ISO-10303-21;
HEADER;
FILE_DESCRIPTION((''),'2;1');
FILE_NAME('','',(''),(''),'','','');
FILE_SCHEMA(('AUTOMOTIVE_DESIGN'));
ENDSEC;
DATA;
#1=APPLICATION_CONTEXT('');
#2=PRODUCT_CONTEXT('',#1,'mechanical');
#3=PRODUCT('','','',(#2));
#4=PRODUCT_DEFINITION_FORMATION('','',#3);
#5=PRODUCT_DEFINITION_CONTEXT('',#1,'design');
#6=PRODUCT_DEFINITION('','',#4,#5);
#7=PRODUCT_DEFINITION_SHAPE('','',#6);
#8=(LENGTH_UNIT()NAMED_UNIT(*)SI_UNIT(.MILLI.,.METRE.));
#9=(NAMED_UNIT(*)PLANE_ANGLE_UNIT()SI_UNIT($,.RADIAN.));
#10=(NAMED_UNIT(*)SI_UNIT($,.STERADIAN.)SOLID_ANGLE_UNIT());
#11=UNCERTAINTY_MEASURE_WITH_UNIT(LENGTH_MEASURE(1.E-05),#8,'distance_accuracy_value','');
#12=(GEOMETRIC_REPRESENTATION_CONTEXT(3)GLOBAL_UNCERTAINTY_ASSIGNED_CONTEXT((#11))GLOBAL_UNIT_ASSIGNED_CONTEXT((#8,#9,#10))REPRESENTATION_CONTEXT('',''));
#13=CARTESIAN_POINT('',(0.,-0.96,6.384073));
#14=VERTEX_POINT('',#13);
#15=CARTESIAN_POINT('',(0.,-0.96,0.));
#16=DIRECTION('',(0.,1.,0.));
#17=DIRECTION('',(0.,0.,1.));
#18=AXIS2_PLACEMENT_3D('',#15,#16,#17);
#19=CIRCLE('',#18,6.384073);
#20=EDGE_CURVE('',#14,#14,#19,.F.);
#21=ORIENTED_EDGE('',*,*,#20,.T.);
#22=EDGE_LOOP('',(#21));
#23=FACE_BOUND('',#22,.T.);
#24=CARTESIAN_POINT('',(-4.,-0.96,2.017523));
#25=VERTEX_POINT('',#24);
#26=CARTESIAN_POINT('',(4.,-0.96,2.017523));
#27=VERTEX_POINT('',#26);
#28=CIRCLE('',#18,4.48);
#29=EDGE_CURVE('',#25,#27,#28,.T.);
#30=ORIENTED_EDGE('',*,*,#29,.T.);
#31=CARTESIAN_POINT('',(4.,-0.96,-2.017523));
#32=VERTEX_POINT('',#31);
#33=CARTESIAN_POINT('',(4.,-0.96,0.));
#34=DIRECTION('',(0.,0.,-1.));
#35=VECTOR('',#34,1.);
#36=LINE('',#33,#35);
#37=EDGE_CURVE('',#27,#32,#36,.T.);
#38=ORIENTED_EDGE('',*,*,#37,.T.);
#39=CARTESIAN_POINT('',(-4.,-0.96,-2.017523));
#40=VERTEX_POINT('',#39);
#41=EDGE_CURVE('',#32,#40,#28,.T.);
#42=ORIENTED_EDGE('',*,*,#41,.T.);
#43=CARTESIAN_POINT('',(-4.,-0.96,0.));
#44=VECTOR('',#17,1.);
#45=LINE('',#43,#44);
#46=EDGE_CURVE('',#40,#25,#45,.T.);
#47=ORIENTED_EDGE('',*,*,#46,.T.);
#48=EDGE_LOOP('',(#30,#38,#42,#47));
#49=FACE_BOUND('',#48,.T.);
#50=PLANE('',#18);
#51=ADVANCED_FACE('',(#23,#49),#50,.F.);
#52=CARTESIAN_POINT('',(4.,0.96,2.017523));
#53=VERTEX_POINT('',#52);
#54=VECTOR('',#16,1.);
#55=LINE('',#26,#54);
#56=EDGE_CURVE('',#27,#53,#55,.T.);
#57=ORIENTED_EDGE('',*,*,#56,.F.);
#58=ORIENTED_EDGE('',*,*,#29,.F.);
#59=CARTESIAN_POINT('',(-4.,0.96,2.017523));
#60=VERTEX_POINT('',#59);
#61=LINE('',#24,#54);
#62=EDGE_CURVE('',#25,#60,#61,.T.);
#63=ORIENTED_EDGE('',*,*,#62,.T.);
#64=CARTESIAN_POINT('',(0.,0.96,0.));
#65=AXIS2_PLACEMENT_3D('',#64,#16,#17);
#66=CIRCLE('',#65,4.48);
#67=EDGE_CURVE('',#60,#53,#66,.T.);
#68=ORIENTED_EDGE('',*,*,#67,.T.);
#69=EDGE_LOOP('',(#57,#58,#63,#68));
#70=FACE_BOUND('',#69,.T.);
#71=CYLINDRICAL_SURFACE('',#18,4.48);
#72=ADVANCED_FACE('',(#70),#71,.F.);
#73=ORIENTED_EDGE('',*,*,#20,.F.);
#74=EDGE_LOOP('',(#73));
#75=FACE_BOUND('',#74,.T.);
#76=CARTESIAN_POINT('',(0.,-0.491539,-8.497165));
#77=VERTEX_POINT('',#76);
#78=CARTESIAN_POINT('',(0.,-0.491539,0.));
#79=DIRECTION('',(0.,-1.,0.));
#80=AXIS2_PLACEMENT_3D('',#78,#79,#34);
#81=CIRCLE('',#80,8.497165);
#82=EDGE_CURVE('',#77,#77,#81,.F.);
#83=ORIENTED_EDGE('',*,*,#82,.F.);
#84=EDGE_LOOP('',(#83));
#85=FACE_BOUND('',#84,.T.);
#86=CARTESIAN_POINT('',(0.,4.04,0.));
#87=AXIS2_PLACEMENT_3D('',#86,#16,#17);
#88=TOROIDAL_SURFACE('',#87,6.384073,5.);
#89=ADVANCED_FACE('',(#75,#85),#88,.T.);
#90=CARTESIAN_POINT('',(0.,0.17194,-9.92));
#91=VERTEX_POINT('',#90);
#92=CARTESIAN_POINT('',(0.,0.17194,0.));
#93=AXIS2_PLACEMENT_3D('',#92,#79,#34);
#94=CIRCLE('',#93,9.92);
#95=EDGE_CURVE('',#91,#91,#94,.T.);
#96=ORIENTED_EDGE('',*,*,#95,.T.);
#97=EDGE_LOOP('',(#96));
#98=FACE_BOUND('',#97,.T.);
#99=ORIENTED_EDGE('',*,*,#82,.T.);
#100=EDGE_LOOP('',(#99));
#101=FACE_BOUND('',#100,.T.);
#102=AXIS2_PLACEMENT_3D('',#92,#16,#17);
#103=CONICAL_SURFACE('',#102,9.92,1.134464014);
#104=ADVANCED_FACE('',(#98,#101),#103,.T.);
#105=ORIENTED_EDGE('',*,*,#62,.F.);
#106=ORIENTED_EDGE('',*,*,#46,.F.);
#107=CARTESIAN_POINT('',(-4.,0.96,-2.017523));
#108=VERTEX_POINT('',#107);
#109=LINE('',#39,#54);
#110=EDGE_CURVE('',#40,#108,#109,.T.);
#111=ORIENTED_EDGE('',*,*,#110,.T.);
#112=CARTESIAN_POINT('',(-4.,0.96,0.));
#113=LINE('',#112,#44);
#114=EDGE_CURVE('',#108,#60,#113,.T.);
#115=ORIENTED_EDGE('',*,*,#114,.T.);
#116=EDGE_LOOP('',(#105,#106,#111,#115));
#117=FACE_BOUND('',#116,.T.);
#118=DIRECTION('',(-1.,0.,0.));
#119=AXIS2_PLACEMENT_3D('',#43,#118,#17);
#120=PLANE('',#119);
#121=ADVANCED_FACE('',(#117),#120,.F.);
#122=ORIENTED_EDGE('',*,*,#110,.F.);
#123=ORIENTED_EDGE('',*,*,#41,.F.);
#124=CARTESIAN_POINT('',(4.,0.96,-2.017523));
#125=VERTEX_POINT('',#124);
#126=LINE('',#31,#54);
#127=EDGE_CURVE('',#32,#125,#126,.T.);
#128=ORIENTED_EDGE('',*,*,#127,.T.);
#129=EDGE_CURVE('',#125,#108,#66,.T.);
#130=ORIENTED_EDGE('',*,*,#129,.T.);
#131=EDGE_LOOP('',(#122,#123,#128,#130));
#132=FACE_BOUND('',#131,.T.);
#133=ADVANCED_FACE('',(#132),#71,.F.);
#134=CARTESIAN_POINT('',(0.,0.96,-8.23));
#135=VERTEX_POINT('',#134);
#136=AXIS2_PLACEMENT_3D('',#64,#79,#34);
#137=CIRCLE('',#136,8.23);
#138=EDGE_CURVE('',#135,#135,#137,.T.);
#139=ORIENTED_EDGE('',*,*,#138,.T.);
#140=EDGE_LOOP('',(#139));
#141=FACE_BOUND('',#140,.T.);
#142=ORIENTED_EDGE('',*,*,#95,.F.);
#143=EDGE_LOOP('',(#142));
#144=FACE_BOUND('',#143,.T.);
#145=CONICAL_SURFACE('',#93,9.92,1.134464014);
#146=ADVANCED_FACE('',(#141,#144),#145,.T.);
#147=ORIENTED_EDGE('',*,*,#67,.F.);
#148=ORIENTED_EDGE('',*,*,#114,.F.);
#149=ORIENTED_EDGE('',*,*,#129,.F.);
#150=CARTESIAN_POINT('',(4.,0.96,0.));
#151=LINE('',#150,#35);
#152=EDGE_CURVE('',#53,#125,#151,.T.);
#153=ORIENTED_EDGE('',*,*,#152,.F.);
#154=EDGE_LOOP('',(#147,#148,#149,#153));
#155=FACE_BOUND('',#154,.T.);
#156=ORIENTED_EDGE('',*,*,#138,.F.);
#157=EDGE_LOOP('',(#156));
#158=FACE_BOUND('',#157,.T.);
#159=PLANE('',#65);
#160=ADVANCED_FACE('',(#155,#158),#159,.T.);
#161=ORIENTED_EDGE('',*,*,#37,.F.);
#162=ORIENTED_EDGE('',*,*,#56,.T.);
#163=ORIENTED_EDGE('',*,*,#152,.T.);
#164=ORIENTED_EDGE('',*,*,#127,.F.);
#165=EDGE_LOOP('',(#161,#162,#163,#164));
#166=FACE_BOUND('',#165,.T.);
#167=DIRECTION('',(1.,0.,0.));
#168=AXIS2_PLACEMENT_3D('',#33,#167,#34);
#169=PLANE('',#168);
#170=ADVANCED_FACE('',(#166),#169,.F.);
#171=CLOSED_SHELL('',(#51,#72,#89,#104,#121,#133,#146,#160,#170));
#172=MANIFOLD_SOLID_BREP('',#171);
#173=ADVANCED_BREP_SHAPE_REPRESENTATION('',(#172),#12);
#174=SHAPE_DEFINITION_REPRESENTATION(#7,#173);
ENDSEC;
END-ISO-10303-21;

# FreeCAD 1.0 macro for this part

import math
import FreeCAD as App
import Part
import Sketcher

V = App.Vector
Q = App.Units.Quantity


def edges_at(feature, points):
    """Names of the edges that pass closest to the given points."""
    edges = feature.Shape.Edges
    near = lambda p: min(range(len(edges)), key=lambda i: edges[i].distToShape(Part.Vertex(*p))[0])
    return sorted({f"Edge{near(p) + 1}" for p in points})

doc = App.newDocument("Part")
body = doc.addObject("PartDesign::Body", "Body")

sketch1 = body.newObject("Sketcher::SketchObject", "Sketch")
sketch1.AttachmentSupport = (doc.getObject("XZ_Plane"), [""])
sketch1.MapMode = "FlatFace"
sketch1.addGeometry(Part.Circle(V(0, 0, 0), V(0, 0, 1), 9.92), False)
sketch1.addConstraint(Sketcher.Constraint("Coincident", 0, 3, -1, 1))
sketch1.addConstraint(Sketcher.Constraint("Diameter", 0, 19.84))
pad1 = body.newObject("PartDesign::Pad", "Pad")
pad1.Profile = sketch1
pad1.Length = 1.92
pad1.Midplane = True

sketch2 = body.newObject("Sketcher::SketchObject", "Sketch001")
sketch2.AttachmentSupport = (doc.getObject("XY_Plane"), [""])
sketch2.MapMode = "FlatFace"
sketch2.addGeometry(Part.LineSegment(V(-9.92, 0.96, 0), V(-9.92, 0.17194, 0)), False)
sketch2.addGeometry(Part.LineSegment(V(-9.92, 0.17194, 0), V(-8.23, 0.96, 0)), False)
sketch2.addGeometry(Part.LineSegment(V(-8.23, 0.96, 0), V(-9.92, 0.96, 0)), False)
sketch2.addGeometry(Part.LineSegment(V(-7.492547, -0.96, 0), V(-9.92, 0.17194, 0)), False)
sketch2.addGeometry(Part.LineSegment(V(-9.92, 0.17194, 0), V(-9.92, -0.96, 0)), False)
sketch2.addGeometry(Part.LineSegment(V(-9.92, -0.96, 0), V(-7.492547, -0.96, 0)), False)
sketch2.addConstraint(Sketcher.Constraint("Coincident", 0, 2, 1, 1))
sketch2.addConstraint(Sketcher.Constraint("Coincident", 1, 2, 2, 1))
sketch2.addConstraint(Sketcher.Constraint("Coincident", 2, 2, 0, 1))
sketch2.addConstraint(Sketcher.Constraint("Coincident", 3, 2, 4, 1))
sketch2.addConstraint(Sketcher.Constraint("Coincident", 4, 2, 5, 1))
sketch2.addConstraint(Sketcher.Constraint("Coincident", 5, 2, 3, 1))
sketch2.addConstraint(Sketcher.Constraint("Vertical", 0))
sketch2.addConstraint(Sketcher.Constraint("Horizontal", 2))
sketch2.addConstraint(Sketcher.Constraint("Vertical", 4))
sketch2.addConstraint(Sketcher.Constraint("Horizontal", 5))
sketch2.addConstraint(Sketcher.Constraint("Coincident", 3, 2, 0, 2))
sketch2.addConstraint(Sketcher.Constraint("Angle", 1, Q("25 deg")))
sketch2.addConstraint(Sketcher.Constraint("Angle", 3, Q("155 deg")))
sketch2.addConstraint(Sketcher.Constraint("DistanceX", 2, 2, 2, 1, 1.69))
sketch2.addConstraint(Sketcher.Constraint("DistanceX", 0, 2, -1, 1, 9.92))
sketch2.addConstraint(Sketcher.Constraint("DistanceY", -1, 1, 1, 2, 0.96))
sketch2.addConstraint(Sketcher.Constraint("DistanceY", 4, 2, -1, 1, 0.96))
groove = body.newObject("PartDesign::Groove", "Groove")
groove.Profile = sketch2
groove.ReferenceAxis = (sketch2, ["V_Axis"])
groove.Angle = 360

sketch3 = body.newObject("Sketcher::SketchObject", "Sketch002")
sketch3.AttachmentSupport = (doc.getObject("XZ_Plane"), [""])
sketch3.MapMode = "FlatFace"
sketch3.AttachmentOffset = App.Placement(V(0, 0, -0.96), App.Rotation())
sketch3.addGeometry(Part.ArcOfCircle(Part.Circle(V(0, 0, 0), V(0, 0, 1), 4.48), math.radians(-153.234499), math.radians(-26.765501)), False)
sketch3.addGeometry(Part.LineSegment(V(-4, -2.017523, 0), V(-4, 2.017523, 0)), False)
sketch3.addGeometry(Part.ArcOfCircle(Part.Circle(V(0, 0, 0), V(0, 0, 1), 4.48), math.radians(26.765501), math.radians(153.234499)), False)
sketch3.addGeometry(Part.LineSegment(V(4, 2.017523, 0), V(4, -2.017523, 0)), False)
sketch3.addConstraint(Sketcher.Constraint("Coincident", 0, 1, 1, 1))
sketch3.addConstraint(Sketcher.Constraint("Coincident", 1, 2, 2, 2))
sketch3.addConstraint(Sketcher.Constraint("Coincident", 2, 1, 3, 1))
sketch3.addConstraint(Sketcher.Constraint("Coincident", 3, 2, 0, 2))
sketch3.addConstraint(Sketcher.Constraint("Vertical", 1))
sketch3.addConstraint(Sketcher.Constraint("Vertical", 3))
sketch3.addConstraint(Sketcher.Constraint("Coincident", 0, 3, -1, 1))
sketch3.addConstraint(Sketcher.Constraint("Coincident", 2, 3, -1, 1))
sketch3.addConstraint(Sketcher.Constraint("Equal", 0, 2))
sketch3.addConstraint(Sketcher.Constraint("Horizontal", 1, 2, 2, 1))
sketch3.addConstraint(Sketcher.Constraint("Radius", 0, 4.48))
sketch3.addConstraint(Sketcher.Constraint("DistanceX", 0, 1, -1, 1, 4.0))
pocket1 = body.newObject("PartDesign::Pocket", "Pocket")
pocket1.Profile = sketch3
pocket1.Length = 1.92
pocket1.Reversed = True
doc.recompute()

fillet = body.newObject("PartDesign::Fillet", "Fillet")
fillet.Base = (pocket1, edges_at(pocket1, [(7.493, -0.96, 0)]))
fillet.Radius = 5

doc.recompute()
